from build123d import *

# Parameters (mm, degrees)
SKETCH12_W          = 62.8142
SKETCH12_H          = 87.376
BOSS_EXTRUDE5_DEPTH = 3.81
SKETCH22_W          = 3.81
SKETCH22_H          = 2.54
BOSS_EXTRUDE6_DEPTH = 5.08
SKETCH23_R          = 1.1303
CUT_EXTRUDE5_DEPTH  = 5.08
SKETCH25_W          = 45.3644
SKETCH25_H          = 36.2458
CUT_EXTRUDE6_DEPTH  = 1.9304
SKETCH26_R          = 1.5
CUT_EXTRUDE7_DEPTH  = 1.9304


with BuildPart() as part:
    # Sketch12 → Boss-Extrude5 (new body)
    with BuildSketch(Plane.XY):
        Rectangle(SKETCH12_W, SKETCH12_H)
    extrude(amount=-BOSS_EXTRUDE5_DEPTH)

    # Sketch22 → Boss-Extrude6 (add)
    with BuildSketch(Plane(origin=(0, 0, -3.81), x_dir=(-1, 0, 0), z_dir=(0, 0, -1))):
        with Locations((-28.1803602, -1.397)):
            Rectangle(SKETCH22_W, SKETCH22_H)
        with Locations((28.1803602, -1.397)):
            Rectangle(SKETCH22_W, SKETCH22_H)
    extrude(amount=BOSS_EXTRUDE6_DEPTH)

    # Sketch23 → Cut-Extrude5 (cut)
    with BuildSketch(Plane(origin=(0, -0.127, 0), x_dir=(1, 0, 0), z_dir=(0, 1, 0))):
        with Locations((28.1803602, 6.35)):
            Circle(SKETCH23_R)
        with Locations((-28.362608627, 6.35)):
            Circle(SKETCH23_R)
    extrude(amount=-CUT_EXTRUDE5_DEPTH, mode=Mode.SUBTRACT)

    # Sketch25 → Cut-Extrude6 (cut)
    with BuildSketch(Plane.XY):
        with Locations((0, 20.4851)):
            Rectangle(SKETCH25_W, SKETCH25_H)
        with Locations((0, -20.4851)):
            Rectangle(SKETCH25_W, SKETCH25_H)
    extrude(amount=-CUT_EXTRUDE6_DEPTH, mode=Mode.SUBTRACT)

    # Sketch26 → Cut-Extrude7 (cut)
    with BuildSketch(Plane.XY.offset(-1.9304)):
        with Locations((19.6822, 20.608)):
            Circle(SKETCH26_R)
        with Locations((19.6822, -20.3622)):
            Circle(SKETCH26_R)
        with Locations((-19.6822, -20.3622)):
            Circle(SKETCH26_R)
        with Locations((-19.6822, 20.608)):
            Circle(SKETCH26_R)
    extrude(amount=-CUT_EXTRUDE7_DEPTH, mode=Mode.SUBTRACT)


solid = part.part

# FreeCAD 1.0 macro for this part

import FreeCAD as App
import Part
import Sketcher

V = App.Vector
Q = App.Units.Quantity


def add_polygon(sketch, points):
    """Adds a closed chain of lines whose ends are joined by coincident constraints."""
    first, n = sketch.GeometryCount, len(points)
    for a, b in zip(points, points[1:] + points[:1]):
        sketch.addGeometry(Part.LineSegment(App.Vector(*a, 0), App.Vector(*b, 0)), False)
    for i in range(n):
        sketch.addConstraint(Sketcher.Constraint("Coincident", first + i, 2, first + (i + 1) % n, 1))

doc = App.newDocument("Part")
body = doc.addObject("PartDesign::Body", "Body")

sketch1 = body.newObject("Sketcher::SketchObject", "Sketch")
sketch1.AttachmentSupport = (doc.getObject("XY_Plane"), [""])
sketch1.MapMode = "FlatFace"
add_polygon(sketch1, [(-31, 44), (-31, -44), (31, -44), (31, 44)])
sketch1.addConstraint([
    Sketcher.Constraint("Vertical", 0),
    Sketcher.Constraint("Horizontal", 1),
    Sketcher.Constraint("Vertical", 2),
    Sketcher.Constraint("Horizontal", 3),
    Sketcher.Constraint("Symmetric", 0, 2, 2, 2, -1, 1),
    Sketcher.Constraint("DistanceY", 0, 2, 0, 1, Q("3.44 in")),
    Sketcher.Constraint("DistanceX", 1, 1, 1, 2, Q("2.473 in")),
])
pad1 = body.newObject("PartDesign::Pad", "Pad")
pad1.Profile = sketch1
pad1.Length = Q("0.15 in")
pad1.Reversed = True

sketch2 = body.newObject("Sketcher::SketchObject", "Sketch001")
sketch2.AttachmentSupport = (doc.getObject("XY_Plane"), [""])
sketch2.MapMode = "FlatFace"
sketch2.AttachmentOffset = App.Placement(V(0, 0, -0.15 * 25.4), App.Rotation())
add_polygon(sketch2, [(30.1, -0.1), (30.1, -2.7), (26.3, -2.7), (26.3, -0.1)])
add_polygon(sketch2, [(-26.3, -0.1), (-26.3, -2.7), (-30.1, -2.7), (-30.1, -0.1)])
sketch2.addConstraint([
    Sketcher.Constraint("Vertical", 0),
    Sketcher.Constraint("Horizontal", 1),
    Sketcher.Constraint("Vertical", 2),
    Sketcher.Constraint("Horizontal", 3),
    Sketcher.Constraint("Vertical", 4),
    Sketcher.Constraint("Horizontal", 5),
    Sketcher.Constraint("Vertical", 6),
    Sketcher.Constraint("Horizontal", 7),
    Sketcher.Constraint("Symmetric", 1, 2, 4, 2, -2),
    Sketcher.Constraint("Symmetric", 3, 2, 6, 2, -2),
    Sketcher.Constraint("DistanceY", 0, 2, 0, 1, Q("0.1 in")),
    Sketcher.Constraint("DistanceX", 1, 2, 1, 1, Q("0.15 in")),
    Sketcher.Constraint("DistanceY", 0, 2, -1, 1, Q("0.105 in")),
    Sketcher.Constraint("DistanceX", -1, 1, 0, 2, 30.08536),
])
pad2 = body.newObject("PartDesign::Pad", "Pad001")
pad2.Profile = sketch2
pad2.Length = Q("0.2 in")
pad2.Reversed = True

sketch3 = body.newObject("Sketcher::SketchObject", "Sketch002")
sketch3.AttachmentSupport = (doc.getObject("XZ_Plane"), [""])
sketch3.MapMode = "FlatFace"
sketch3.AttachmentOffset = App.Placement(V(0, 0, 0.005 * 25.4), App.Rotation())
sketch3.addGeometry([
    Part.Circle(V(28.2, -6.3, 0), V(0, 0, 1), 1.1),
    Part.Circle(V(-28.4, -6.3, 0), V(0, 0, 1), 1.1),
], False)
sketch3.addConstraint([
    Sketcher.Constraint("Equal", 0, 1),
    Sketcher.Constraint("Horizontal", 0, 3, 1, 3),
    Sketcher.Constraint("Diameter", 0, Q("0.089 in")),
    Sketcher.Constraint("DistanceY", 0, 3, -1, 1, Q("0.25 in")),
    Sketcher.Constraint("DistanceX", -1, 1, 0, 3, 28.18036),
    Sketcher.Constraint("DistanceX", 1, 3, -1, 1, 28.362609),
])
pocket1 = body.newObject("PartDesign::Pocket", "Pocket")
pocket1.Profile = sketch3
pocket1.Length = Q("0.2 in")
pocket1.Reversed = True

sketch4 = body.newObject("Sketcher::SketchObject", "Sketch003")
sketch4.AttachmentSupport = (doc.getObject("XY_Plane"), [""])
sketch4.MapMode = "FlatFace"
add_polygon(sketch4, [(-23, 39), (-23, 2), (23, 2), (23, 39)])
add_polygon(sketch4, [(-23, -2), (-23, -39), (23, -39), (23, -2)])
sketch4.addConstraint([
    Sketcher.Constraint("Vertical", 0),
    Sketcher.Constraint("Horizontal", 1),
    Sketcher.Constraint("Vertical", 2),
    Sketcher.Constraint("Horizontal", 3),
    Sketcher.Constraint("Vertical", 4),
    Sketcher.Constraint("Horizontal", 5),
    Sketcher.Constraint("Vertical", 6),
    Sketcher.Constraint("Horizontal", 7),
    Sketcher.Constraint("Symmetric", 2, 2, 4, 2, -1, 1),
    Sketcher.Constraint("Symmetric", 0, 2, 6, 2, -1, 1),
    Sketcher.Constraint("Vertical", 3, 2, 4, 2),
    Sketcher.Constraint("DistanceX", 1, 1, 1, 2, Q("1.786 in")),
    Sketcher.Constraint("DistanceY", 0, 2, 0, 1, Q("1.427 in")),
    Sketcher.Constraint("DistanceY", -1, 1, 2, 2, Q("1.52 in")),
])
pocket2 = body.newObject("PartDesign::Pocket", "Pocket001")
pocket2.Profile = sketch4
pocket2.Length = Q("0.076 in")

sketch5 = body.newObject("Sketcher::SketchObject", "Sketch004")
sketch5.AttachmentSupport = (doc.getObject("XY_Plane"), [""])
sketch5.MapMode = "FlatFace"
sketch5.AttachmentOffset = App.Placement(V(0, 0, -0.076 * 25.4), App.Rotation())
sketch5.addGeometry([
    Part.Circle(V(19.7, 20.6, 0), V(0, 0, 1), 1.5),
    Part.Circle(V(19.7, -20.4, 0), V(0, 0, 1), 1.5),
    Part.Circle(V(-19.7, -20.4, 0), V(0, 0, 1), 1.5),
    Part.Circle(V(-19.7, 20.6, 0), V(0, 0, 1), 1.5),
], False)
sketch5.addConstraint([
    Sketcher.Constraint("Equal", 0, 1),
    Sketcher.Constraint("Equal", 1, 2),
    Sketcher.Constraint("Equal", 2, 3),
    Sketcher.Constraint("Symmetric", 1, 3, 2, 3, -2),
    Sketcher.Constraint("Symmetric", 0, 3, 3, 3, -2),
    Sketcher.Constraint("Vertical", 0, 3, 1, 3),
    Sketcher.Constraint("Diameter", 0, 3.0),
    Sketcher.Constraint("DistanceY", 1, 3, 0, 3, Q("1.613 in")),
    Sketcher.Constraint("DistanceX", -1, 1, 0, 3, 19.6822),
    Sketcher.Constraint("DistanceY", -1, 1, 0, 3, 20.608),
])
pocket3 = body.newObject("PartDesign::Pocket", "Pocket002")
pocket3.Profile = sketch5
pocket3.Length = Q("0.076 in")

doc.recompute()
